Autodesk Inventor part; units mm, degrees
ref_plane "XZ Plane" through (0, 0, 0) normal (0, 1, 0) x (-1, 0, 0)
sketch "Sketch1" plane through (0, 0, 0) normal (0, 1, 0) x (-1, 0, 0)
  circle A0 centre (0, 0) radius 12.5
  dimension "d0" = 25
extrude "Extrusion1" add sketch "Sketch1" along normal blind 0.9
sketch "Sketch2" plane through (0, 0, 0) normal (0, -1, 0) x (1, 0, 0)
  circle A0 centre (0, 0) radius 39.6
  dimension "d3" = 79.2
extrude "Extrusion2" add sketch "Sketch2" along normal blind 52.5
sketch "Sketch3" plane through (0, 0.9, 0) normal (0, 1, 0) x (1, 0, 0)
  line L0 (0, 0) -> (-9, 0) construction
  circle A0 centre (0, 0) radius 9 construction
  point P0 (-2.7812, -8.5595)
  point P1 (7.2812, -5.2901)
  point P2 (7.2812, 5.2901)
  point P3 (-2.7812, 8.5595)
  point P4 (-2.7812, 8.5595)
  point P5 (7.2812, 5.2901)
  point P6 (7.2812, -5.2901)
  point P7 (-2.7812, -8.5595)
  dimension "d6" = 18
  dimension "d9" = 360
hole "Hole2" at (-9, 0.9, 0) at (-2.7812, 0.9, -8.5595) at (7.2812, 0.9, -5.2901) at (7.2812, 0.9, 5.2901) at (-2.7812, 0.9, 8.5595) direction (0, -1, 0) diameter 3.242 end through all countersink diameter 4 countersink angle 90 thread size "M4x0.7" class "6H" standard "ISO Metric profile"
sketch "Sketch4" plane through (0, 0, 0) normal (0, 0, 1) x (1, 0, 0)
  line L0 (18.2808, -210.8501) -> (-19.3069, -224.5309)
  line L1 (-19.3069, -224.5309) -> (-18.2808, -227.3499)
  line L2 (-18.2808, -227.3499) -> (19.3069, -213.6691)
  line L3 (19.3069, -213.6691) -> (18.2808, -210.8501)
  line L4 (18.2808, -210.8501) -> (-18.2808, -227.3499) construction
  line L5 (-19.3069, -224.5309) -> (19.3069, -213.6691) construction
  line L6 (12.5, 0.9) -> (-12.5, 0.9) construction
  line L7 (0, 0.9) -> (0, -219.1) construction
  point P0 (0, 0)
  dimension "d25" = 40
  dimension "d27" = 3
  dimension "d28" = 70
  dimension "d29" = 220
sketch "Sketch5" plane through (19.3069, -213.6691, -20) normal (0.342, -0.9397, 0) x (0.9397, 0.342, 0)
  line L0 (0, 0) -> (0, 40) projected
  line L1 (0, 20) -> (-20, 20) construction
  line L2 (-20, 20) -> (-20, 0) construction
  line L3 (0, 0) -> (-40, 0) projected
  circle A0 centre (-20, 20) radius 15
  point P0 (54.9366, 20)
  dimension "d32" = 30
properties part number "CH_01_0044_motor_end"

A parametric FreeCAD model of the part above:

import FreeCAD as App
import Part
import Sketcher
Q = App.Units.Quantity

doc = App.newDocument("Part")
body = doc.addObject("PartDesign::Body", "Body")

sketch1 = doc.addObject("Sketcher::SketchObject", "Sketch")
body.addObject(sketch1)
sketch1.AttachmentSupport = (doc.XZ_Plane, [""])
sketch1.MapMode = "FlatFace"
sketch1.addGeometry(Part.Circle(App.Vector(0, 0, 0), App.Vector(0, 0, 1), 12), False)
sketch1.addConstraint(Sketcher.Constraint("Coincident", 0, 3, -1, 1))
sketch1.addConstraint(Sketcher.Constraint("Diameter", 0, Q("25 mm")))
pad1 = doc.addObject("PartDesign::Pad", "Pad")
body.addObject(pad1)
pad1.Profile = sketch1
pad1.Length = 0.9
pad1.Reversed = True

sketch2 = doc.addObject("Sketcher::SketchObject", "Sketch001")
body.addObject(sketch2)
sketch2.AttachmentSupport = (doc.XZ_Plane, [""])
sketch2.MapMode = "FlatFace"
sketch2.addGeometry(Part.Circle(App.Vector(0, 0, 0), App.Vector(0, 0, 1), 40), False)
sketch2.addConstraint(Sketcher.Constraint("Coincident", 0, 3, -1, 1))
sketch2.addConstraint(Sketcher.Constraint("Diameter", 0, Q("79.2 mm")))
pad2 = doc.addObject("PartDesign::Pad", "Pad001")
body.addObject(pad2)
pad2.Profile = sketch2
pad2.Length = 52.5

sketch3 = doc.addObject("Sketcher::SketchObject", "Sketch002")
body.addObject(sketch3)
sketch3.AttachmentSupport = (doc.XZ_Plane, [""])
sketch3.MapMode = "FlatFace"
sketch3.AttachmentOffset = App.Placement(App.Vector(0, 0, -0.9), App.Rotation())
sketch3.addGeometry(Part.Circle(App.Vector(-9, 0, 0), App.Vector(0, 0, 1), 1.6), False)
sketch3.addGeometry(Part.Circle(App.Vector(-2.8, -8.6, 0), App.Vector(0, 0, 1), 1.6), False)
sketch3.addGeometry(Part.Circle(App.Vector(7.3, -5.3, 0), App.Vector(0, 0, 1), 1.6), False)
sketch3.addGeometry(Part.Circle(App.Vector(7.3, 5.3, 0), App.Vector(0, 0, 1), 1.6), False)
sketch3.addGeometry(Part.Circle(App.Vector(-2.8, 8.6, 0), App.Vector(0, 0, 1), 1.6), False)
sketch3.addConstraint(Sketcher.Constraint("Equal", 0, 1))
sketch3.addConstraint(Sketcher.Constraint("Equal", 1, 2))
sketch3.addConstraint(Sketcher.Constraint("Equal", 2, 3))
sketch3.addConstraint(Sketcher.Constraint("Equal", 3, 4))
sketch3.addConstraint(Sketcher.Constraint("Symmetric", 2, 3, 3, 3, -1))
sketch3.addConstraint(Sketcher.Constraint("Symmetric", 1, 3, 4, 3, -1))
sketch3.addConstraint(Sketcher.Constraint("PointOnObject", 0, 3, -1))
sketch3.addConstraint(Sketcher.Constraint("Diameter", 0, Q("3.242 mm")))
sketch3.addConstraint(Sketcher.Constraint("DistanceX", 0, 3, -1, 1, Q("9 mm")))
sketch3.addConstraint(Sketcher.Constraint("DistanceY", 2, 3, -1, 1, Q("5.29 mm")))
sketch3.addConstraint(Sketcher.Constraint("DistanceY", 1, 3, 4, 3, Q("17.119 mm")))
sketch3.addConstraint(Sketcher.Constraint("DistanceX", 1, 3, -1, 1, Q("2.7812 mm")))
sketch3.addConstraint(Sketcher.Constraint("DistanceX", -1, 1, 2, 3, Q("7.2812 mm")))
doc.recompute()
hole = doc.addObject("PartDesign::Hole", "Hole")
body.addObject(hole)
hole.Profile = sketch3
hole.ThreadType = "None"
hole.Diameter = 3.242
hole.DepthType = "ThroughAll"
hole.HoleCutType = "Countersink"
hole.HoleCutDiameter = 4
hole.HoleCutCountersinkAngle = 90
hole.Reversed = True

doc.recompute()
